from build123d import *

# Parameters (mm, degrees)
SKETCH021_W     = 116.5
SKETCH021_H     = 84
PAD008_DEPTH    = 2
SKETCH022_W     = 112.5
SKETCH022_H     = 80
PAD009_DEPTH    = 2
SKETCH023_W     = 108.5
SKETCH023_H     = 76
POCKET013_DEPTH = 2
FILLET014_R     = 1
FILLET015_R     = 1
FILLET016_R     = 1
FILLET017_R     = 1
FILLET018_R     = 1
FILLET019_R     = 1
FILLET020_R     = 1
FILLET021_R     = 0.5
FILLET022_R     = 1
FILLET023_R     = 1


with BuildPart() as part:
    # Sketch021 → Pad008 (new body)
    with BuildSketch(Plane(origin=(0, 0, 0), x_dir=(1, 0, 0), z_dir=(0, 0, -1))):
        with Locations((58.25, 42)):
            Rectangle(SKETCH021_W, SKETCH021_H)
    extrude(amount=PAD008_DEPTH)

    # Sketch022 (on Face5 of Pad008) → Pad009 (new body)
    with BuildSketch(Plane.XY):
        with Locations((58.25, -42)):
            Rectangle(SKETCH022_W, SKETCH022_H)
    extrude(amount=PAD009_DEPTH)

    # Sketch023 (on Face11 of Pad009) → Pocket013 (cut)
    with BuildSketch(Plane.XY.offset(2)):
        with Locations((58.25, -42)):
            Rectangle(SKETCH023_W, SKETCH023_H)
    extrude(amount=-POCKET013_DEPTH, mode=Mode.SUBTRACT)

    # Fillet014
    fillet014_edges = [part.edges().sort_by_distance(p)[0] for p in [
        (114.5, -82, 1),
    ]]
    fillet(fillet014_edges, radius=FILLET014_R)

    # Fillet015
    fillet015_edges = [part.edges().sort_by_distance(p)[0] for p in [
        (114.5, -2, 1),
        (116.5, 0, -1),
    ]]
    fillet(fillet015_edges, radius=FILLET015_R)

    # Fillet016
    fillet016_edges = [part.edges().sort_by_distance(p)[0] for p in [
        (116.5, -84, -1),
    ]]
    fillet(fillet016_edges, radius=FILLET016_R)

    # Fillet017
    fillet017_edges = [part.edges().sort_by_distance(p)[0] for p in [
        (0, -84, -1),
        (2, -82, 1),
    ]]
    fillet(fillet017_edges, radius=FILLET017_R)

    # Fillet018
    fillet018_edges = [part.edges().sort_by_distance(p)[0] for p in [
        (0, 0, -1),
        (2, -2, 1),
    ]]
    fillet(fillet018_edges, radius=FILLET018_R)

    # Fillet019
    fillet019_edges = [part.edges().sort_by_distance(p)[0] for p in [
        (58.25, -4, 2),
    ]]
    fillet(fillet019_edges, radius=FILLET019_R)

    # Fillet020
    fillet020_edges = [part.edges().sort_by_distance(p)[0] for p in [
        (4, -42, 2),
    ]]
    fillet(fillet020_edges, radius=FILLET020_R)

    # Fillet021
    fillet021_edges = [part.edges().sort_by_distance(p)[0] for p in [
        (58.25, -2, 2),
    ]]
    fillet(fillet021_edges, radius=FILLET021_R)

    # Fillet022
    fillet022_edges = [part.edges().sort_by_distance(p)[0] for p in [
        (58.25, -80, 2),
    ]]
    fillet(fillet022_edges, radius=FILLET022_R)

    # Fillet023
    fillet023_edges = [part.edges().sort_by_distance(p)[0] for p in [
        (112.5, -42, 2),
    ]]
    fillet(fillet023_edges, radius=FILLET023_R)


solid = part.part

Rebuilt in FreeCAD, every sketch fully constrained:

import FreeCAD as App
import Part
import Sketcher

V = App.Vector


def edges_at(feature, points):
    """Names of the edges that pass closest to the given points."""
    edges = feature.Shape.Edges
    near = lambda p: min(range(len(edges)), key=lambda i: edges[i].distToShape(Part.Vertex(*p))[0])
    return sorted({f"Edge{near(p) + 1}" for p in points})

doc = App.newDocument("Part")
body = doc.addObject("PartDesign::Body", "Body")

# Sketch on XY plane
sketch1 = body.newObject("Sketcher::SketchObject", "Sketch")
sketch1.AttachmentSupport = (doc.getObject("XY_Plane"), [""])
sketch1.MapMode = "FlatFace"
sketch1.addGeometry([
    Part.LineSegment(V(0, -84, 0), V(0, 0, 0)),
    Part.LineSegment(V(0, 0, 0), V(116, 0, 0)),
    Part.LineSegment(V(116, 0, 0), V(116, -84, 0)),
    Part.LineSegment(V(116, -84, 0), V(0, -84, 0)),
], False)
sketch1.addConstraint([
    Sketcher.Constraint("Coincident", 0, 2, 1, 1),
    Sketcher.Constraint("Coincident", 1, 2, 2, 1),
    Sketcher.Constraint("Coincident", 2, 2, 3, 1),
    Sketcher.Constraint("Coincident", 3, 2, 0, 1),
    Sketcher.Constraint("Vertical", 0),
    Sketcher.Constraint("Horizontal", 1),
    Sketcher.Constraint("Vertical", 2),
    Sketcher.Constraint("Horizontal", 3),
    Sketcher.Constraint("Coincident", 0, 2, -1, 1),
    Sketcher.Constraint("DistanceY", 0, 1, 0, 2, 84.0),
    Sketcher.Constraint("DistanceX", 1, 1, 1, 2, 116.5),
])
pad1 = body.newObject("PartDesign::Pad", "Pad")
pad1.Profile = sketch1
pad1.Length = 2
pad1.Reversed = True

# Sketch on XY plane
sketch2 = body.newObject("Sketcher::SketchObject", "Sketch001")
sketch2.AttachmentSupport = (doc.getObject("XY_Plane"), [""])
sketch2.MapMode = "FlatFace"
sketch2.addGeometry([
    Part.LineSegment(V(2, -2, 0), V(2, -82, 0)),
    Part.LineSegment(V(2, -82, 0), V(114, -82, 0)),
    Part.LineSegment(V(114, -82, 0), V(114, -2, 0)),
    Part.LineSegment(V(114, -2, 0), V(2, -2, 0)),
], False)
sketch2.addConstraint([
    Sketcher.Constraint("Coincident", 0, 2, 1, 1),
    Sketcher.Constraint("Coincident", 1, 2, 2, 1),
    Sketcher.Constraint("Coincident", 2, 2, 3, 1),
    Sketcher.Constraint("Coincident", 3, 2, 0, 1),
    Sketcher.Constraint("Vertical", 0),
    Sketcher.Constraint("Horizontal", 1),
    Sketcher.Constraint("Vertical", 2),
    Sketcher.Constraint("Horizontal", 3),
    Sketcher.Constraint("DistanceY", 0, 2, 0, 1, 80.0),
    Sketcher.Constraint("DistanceX", 1, 1, 1, 2, 112.5),
    Sketcher.Constraint("DistanceX", -1, 1, 0, 2, 2.0),
    Sketcher.Constraint("DistanceY", 0, 2, -1, 1, 82.0),
])
pad2 = body.newObject("PartDesign::Pad", "Pad001")
pad2.Profile = sketch2
pad2.Length = 2

# Sketch on XY plane
sketch3 = body.newObject("Sketcher::SketchObject", "Sketch002")
sketch3.AttachmentSupport = (doc.getObject("XY_Plane"), [""])
sketch3.MapMode = "FlatFace"
sketch3.AttachmentOffset = App.Placement(V(0, 0, 2), App.Rotation())
sketch3.addGeometry([
    Part.LineSegment(V(4, -4, 0), V(4, -80, 0)),
    Part.LineSegment(V(4, -80, 0), V(112, -80, 0)),
    Part.LineSegment(V(112, -80, 0), V(112, -4, 0)),
    Part.LineSegment(V(112, -4, 0), V(4, -4, 0)),
], False)
sketch3.addConstraint([
    Sketcher.Constraint("Coincident", 0, 2, 1, 1),
    Sketcher.Constraint("Coincident", 1, 2, 2, 1),
    Sketcher.Constraint("Coincident", 2, 2, 3, 1),
    Sketcher.Constraint("Coincident", 3, 2, 0, 1),
    Sketcher.Constraint("Vertical", 0),
    Sketcher.Constraint("Horizontal", 1),
    Sketcher.Constraint("Vertical", 2),
    Sketcher.Constraint("Horizontal", 3),
    Sketcher.Constraint("DistanceY", 0, 2, 0, 1, 76.0),
    Sketcher.Constraint("DistanceX", 1, 1, 1, 2, 108.5),
    Sketcher.Constraint("DistanceX", -1, 1, 0, 2, 4.0),
    Sketcher.Constraint("DistanceY", 0, 2, -1, 1, 80.0),
])
pocket1 = body.newObject("PartDesign::Pocket", "Pocket")
pocket1.Profile = sketch3
pocket1.Length = 2
doc.recompute()

fillet = body.newObject("PartDesign::Fillet", "Fillet")
fillet.Base = (pocket1, edges_at(pocket1, [(114.5, -82, 1)]))
fillet.Radius = 1
doc.recompute()

fillet2 = body.newObject("PartDesign::Fillet", "Fillet001")
fillet2.Base = (fillet, edges_at(fillet, [(114.5, -2, 1), (116.5, 0, -1)]))
fillet2.Radius = 1
doc.recompute()

fillet3 = body.newObject("PartDesign::Fillet", "Fillet002")
fillet3.Base = (fillet2, edges_at(fillet2, [(116.5, -84, -1)]))
fillet3.Radius = 1
doc.recompute()

fillet4 = body.newObject("PartDesign::Fillet", "Fillet003")
fillet4.Base = (fillet3, edges_at(fillet3, [(0, -84, -1), (2, -82, 1)]))
fillet4.Radius = 1
doc.recompute()

fillet5 = body.newObject("PartDesign::Fillet", "Fillet004")
fillet5.Base = (fillet4, edges_at(fillet4, [(0, 0, -1), (2, -2, 1)]))
fillet5.Radius = 1
doc.recompute()

fillet6 = body.newObject("PartDesign::Fillet", "Fillet005")
fillet6.Base = (fillet5, edges_at(fillet5, [(58.25, -4, 2)]))
fillet6.Radius = 1
doc.recompute()

fillet7 = body.newObject("PartDesign::Fillet", "Fillet006")
fillet7.Base = (fillet6, edges_at(fillet6, [(4, -41.5, 2)]))
fillet7.Radius = 1
doc.recompute()

fillet8 = body.newObject("PartDesign::Fillet", "Fillet007")
fillet8.Base = (fillet7, edges_at(fillet7, [(58.25, -2, 2)]))
fillet8.Radius = 0.5
doc.recompute()

fillet9 = body.newObject("PartDesign::Fillet", "Fillet008")
fillet9.Base = (fillet8, edges_at(fillet8, [(57.75, -80, 2)]))
fillet9.Radius = 1
doc.recompute()

fillet10 = body.newObject("PartDesign::Fillet", "Fillet009")
fillet10.Base = (fillet9, edges_at(fillet9, [(112.5, -42, 2)]))
fillet10.Radius = 1

doc.recompute()
